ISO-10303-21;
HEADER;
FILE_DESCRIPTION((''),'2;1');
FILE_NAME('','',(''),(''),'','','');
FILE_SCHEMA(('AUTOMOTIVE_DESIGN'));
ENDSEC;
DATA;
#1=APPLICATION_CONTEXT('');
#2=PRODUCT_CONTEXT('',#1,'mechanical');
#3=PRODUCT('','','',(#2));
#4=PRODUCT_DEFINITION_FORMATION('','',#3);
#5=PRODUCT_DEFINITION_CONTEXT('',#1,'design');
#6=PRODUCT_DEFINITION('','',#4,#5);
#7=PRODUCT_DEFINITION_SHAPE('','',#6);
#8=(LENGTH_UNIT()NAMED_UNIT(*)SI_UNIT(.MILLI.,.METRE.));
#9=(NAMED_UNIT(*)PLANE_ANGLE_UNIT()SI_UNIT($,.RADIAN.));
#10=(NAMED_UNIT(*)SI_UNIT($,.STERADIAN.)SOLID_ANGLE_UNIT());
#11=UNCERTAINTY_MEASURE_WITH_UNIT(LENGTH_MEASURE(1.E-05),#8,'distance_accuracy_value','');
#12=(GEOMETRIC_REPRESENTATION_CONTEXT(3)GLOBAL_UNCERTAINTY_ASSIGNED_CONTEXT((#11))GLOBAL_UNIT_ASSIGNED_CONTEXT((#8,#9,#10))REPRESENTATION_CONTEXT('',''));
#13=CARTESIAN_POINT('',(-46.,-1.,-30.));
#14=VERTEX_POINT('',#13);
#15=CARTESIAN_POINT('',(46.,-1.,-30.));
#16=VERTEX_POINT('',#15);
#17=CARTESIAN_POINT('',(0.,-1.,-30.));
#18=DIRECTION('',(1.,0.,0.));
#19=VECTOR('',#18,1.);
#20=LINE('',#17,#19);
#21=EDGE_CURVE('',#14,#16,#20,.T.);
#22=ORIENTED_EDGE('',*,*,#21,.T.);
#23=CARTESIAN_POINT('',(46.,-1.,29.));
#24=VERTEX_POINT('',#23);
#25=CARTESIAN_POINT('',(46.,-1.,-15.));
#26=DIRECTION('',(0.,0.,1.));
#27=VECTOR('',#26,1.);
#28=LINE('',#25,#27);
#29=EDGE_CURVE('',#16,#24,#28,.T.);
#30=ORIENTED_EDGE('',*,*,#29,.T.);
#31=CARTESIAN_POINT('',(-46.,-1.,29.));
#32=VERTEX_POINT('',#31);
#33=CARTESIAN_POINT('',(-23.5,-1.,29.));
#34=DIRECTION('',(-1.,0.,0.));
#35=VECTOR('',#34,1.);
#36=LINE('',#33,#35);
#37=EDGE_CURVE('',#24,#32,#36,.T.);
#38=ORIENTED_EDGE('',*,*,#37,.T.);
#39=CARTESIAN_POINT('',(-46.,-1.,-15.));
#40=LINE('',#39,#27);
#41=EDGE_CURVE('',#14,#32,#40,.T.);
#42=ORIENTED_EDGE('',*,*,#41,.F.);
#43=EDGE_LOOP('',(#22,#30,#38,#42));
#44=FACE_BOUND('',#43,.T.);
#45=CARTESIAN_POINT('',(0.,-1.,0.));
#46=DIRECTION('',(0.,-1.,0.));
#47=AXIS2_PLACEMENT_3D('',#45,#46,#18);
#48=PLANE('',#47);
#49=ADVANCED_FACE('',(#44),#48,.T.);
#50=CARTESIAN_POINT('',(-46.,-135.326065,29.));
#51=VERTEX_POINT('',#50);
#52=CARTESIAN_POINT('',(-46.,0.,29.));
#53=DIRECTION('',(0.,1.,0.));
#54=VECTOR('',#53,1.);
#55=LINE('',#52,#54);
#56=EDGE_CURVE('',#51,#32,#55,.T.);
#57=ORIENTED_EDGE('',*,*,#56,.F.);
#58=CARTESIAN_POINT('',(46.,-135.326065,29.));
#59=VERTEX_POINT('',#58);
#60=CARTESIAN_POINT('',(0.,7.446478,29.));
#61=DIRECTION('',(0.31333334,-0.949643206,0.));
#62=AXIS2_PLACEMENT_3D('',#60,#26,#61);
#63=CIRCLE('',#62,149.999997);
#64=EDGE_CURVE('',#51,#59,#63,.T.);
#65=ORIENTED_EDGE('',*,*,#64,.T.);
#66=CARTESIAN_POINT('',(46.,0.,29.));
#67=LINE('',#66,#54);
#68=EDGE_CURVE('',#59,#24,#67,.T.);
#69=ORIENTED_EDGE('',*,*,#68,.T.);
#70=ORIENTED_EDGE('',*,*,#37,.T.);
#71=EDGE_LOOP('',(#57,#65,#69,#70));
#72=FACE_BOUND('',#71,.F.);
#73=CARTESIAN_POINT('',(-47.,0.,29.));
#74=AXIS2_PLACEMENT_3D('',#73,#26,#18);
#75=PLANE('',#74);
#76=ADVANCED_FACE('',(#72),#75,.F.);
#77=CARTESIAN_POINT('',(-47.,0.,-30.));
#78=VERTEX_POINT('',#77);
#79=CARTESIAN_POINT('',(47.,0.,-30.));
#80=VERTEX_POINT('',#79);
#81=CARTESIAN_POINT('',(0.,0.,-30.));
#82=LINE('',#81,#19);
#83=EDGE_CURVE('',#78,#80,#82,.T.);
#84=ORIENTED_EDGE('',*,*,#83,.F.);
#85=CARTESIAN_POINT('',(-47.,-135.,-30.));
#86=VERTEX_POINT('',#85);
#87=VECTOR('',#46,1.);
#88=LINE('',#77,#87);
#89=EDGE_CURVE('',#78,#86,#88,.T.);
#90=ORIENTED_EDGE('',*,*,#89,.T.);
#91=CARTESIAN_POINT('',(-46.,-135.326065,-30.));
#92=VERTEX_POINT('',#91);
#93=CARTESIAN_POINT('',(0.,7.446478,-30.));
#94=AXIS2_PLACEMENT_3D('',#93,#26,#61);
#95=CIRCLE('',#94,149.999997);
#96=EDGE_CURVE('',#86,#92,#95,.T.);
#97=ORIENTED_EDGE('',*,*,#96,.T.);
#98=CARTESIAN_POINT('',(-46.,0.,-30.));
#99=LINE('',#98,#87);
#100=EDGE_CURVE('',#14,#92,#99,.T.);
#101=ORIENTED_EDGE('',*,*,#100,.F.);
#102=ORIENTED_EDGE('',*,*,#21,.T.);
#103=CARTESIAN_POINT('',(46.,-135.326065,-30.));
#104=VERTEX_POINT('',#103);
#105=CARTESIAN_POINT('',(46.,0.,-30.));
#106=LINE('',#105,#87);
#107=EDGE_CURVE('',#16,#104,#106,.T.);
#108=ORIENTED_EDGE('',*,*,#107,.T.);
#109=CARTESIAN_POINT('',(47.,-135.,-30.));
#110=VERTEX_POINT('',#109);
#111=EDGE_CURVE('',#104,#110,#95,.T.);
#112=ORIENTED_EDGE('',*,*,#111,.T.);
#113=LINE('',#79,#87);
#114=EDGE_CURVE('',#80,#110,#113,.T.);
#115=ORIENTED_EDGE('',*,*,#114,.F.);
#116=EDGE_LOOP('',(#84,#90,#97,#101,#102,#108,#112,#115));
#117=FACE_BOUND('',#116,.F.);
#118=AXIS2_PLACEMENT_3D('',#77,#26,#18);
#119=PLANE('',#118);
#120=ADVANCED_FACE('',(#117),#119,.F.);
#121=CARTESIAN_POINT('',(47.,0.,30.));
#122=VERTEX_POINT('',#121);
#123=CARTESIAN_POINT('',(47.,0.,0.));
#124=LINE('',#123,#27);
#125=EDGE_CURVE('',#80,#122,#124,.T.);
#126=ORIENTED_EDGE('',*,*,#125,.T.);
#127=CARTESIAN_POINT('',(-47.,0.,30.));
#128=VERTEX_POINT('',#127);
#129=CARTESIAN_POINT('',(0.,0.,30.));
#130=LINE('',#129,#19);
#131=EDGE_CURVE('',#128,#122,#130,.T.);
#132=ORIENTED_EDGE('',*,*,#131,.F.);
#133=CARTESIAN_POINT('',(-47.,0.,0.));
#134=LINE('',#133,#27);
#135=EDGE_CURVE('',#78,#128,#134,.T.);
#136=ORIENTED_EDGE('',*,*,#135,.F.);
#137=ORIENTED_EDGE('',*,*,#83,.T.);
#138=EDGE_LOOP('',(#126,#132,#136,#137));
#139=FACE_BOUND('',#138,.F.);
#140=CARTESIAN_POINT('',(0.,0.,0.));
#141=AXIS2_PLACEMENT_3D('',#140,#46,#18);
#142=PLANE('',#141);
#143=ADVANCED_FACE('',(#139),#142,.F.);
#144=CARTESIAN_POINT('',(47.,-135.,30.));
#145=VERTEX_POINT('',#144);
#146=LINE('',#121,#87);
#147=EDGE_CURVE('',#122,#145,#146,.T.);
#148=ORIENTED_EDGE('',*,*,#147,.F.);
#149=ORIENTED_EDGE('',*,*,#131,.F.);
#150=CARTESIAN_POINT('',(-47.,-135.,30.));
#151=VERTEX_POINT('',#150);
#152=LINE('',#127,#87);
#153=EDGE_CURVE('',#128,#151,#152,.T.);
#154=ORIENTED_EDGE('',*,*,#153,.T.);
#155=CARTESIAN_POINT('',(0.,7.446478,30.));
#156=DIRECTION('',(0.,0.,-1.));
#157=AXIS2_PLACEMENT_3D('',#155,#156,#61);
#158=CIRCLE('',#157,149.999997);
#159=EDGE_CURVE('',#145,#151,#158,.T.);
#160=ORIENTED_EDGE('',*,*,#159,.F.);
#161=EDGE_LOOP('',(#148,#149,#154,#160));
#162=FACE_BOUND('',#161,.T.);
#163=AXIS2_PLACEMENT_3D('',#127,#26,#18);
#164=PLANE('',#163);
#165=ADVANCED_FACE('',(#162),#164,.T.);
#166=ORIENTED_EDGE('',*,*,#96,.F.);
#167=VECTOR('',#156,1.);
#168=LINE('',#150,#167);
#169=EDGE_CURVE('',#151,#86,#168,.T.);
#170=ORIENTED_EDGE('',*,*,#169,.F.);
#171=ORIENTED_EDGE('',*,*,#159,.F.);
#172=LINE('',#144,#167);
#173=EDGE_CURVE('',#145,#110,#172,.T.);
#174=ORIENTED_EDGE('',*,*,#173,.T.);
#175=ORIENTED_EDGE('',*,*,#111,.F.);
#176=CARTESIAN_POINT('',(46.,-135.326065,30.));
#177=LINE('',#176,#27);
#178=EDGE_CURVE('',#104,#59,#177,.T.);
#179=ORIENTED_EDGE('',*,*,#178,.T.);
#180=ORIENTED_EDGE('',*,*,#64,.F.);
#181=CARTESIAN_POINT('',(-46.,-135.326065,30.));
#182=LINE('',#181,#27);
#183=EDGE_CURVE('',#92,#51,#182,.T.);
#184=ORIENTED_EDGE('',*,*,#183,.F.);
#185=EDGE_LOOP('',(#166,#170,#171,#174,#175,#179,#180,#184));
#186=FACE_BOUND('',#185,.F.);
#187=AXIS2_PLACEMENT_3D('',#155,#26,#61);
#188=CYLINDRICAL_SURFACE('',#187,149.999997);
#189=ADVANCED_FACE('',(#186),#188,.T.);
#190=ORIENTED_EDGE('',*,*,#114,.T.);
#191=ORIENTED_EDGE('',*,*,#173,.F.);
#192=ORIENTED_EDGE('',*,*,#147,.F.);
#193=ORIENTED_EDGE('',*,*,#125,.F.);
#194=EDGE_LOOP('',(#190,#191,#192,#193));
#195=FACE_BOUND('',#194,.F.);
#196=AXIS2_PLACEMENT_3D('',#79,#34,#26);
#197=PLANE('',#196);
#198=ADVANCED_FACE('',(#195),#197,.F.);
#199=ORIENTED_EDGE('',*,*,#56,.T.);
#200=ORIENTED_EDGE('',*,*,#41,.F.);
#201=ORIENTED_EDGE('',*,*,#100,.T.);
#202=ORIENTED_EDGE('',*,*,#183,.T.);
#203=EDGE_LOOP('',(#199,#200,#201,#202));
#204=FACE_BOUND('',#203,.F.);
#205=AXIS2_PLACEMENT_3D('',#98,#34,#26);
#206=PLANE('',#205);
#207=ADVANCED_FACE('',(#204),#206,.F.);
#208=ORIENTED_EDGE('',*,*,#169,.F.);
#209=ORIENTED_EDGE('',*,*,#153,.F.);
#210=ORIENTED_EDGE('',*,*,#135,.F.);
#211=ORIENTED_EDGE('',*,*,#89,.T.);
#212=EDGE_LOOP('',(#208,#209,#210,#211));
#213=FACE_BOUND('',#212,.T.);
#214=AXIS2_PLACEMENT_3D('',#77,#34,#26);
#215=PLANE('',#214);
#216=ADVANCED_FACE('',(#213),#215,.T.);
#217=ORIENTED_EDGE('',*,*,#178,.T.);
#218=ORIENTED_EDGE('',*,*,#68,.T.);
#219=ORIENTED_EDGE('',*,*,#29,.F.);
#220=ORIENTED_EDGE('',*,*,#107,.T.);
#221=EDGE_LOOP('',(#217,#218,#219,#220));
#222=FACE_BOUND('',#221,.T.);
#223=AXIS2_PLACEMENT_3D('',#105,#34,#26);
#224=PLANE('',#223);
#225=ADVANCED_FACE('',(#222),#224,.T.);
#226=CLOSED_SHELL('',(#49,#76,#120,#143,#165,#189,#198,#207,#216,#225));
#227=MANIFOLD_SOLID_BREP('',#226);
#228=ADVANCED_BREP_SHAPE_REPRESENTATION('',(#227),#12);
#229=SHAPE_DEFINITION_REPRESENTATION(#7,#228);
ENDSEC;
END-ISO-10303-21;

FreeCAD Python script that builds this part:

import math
import FreeCAD as App
import Part
import Sketcher


def faces_at(feature, points):
    """Names of the faces that lie closest to the given points."""
    faces = feature.Shape.Faces
    near = lambda p: min(range(len(faces)), key=lambda i: faces[i].distToShape(Part.Vertex(*p))[0])
    return sorted({f"Face{near(p) + 1}" for p in points})

doc = App.newDocument("Part")
body = doc.addObject("PartDesign::Body", "Body")

sketch1 = body.newObject("Sketcher::SketchObject", "Sketch")
sketch1.AttachmentSupport = (doc.getObject("XZ_Plane"), [""])
sketch1.MapMode = "FlatFace"
sketch1.addGeometry([
    Part.LineSegment(App.Vector(-47, 30, 0), App.Vector(-47, -30, 0)),
    Part.LineSegment(App.Vector(-47, -30, 0), App.Vector(47, -30, 0)),
    Part.LineSegment(App.Vector(47, -30, 0), App.Vector(47, 30, 0)),
    Part.LineSegment(App.Vector(47, 30, 0), App.Vector(-47, 30, 0)),
], False)
sketch1.addConstraint([
    Sketcher.Constraint("Coincident", 0, 2, 1, 1),
    Sketcher.Constraint("Coincident", 1, 2, 2, 1),
    Sketcher.Constraint("Coincident", 2, 2, 3, 1),
    Sketcher.Constraint("Coincident", 3, 2, 0, 1),
    Sketcher.Constraint("Vertical", 0),
    Sketcher.Constraint("Horizontal", 1),
    Sketcher.Constraint("Vertical", 2),
    Sketcher.Constraint("Horizontal", 3),
    Sketcher.Constraint("Symmetric", 0, 2, 2, 2, -1, 1),
    Sketcher.Constraint("DistanceX", 1, 1, 1, 2, 94.0),
    Sketcher.Constraint("DistanceY", 0, 2, 0, 1, 60.0),
])
pad1 = body.newObject("PartDesign::Pad", "Pad")
pad1.Profile = sketch1
pad1.Length = 150
doc.recompute()

thickness = body.newObject("PartDesign::Thickness", "Thickness")
thickness.Base = (pad1, faces_at(pad1, [(0, -150, 0), (0, -75, -30)]))
thickness.Value = 1
thickness.Reversed = True
thickness.Join = "Arc"

sketch2 = body.newObject("Sketcher::SketchObject", "Sketch001")
sketch2.AttachmentSupport = (doc.getObject("XY_Plane"), [""])
sketch2.MapMode = "FlatFace"
sketch2.AttachmentOffset = App.Placement(App.Vector(0, 0, 30), App.Rotation())
sketch2.addGeometry([
    Part.LineSegment(App.Vector(47, -150, 0), App.Vector(47, -135, 0)),
    Part.ArcOfCircle(Part.Circle(App.Vector(0, 7.446478, 0), App.Vector(0, 0, 1), 149.999997), math.radians(-108.260228), math.radians(-71.739772)),
    Part.LineSegment(App.Vector(-47, -135, 0), App.Vector(-47, -150, 0)),
    Part.LineSegment(App.Vector(-47, -150, 0), App.Vector(47, -150, 0)),
], False)
sketch2.addConstraint([
    Sketcher.Constraint("Coincident", 0, 2, 1, 2),
    Sketcher.Constraint("Coincident", 1, 1, 2, 1),
    Sketcher.Constraint("Coincident", 2, 2, 3, 1),
    Sketcher.Constraint("Coincident", 3, 2, 0, 1),
    Sketcher.Constraint("Vertical", 0),
    Sketcher.Constraint("Vertical", 2),
    Sketcher.Constraint("Horizontal", 3),
    Sketcher.Constraint("Symmetric", 0, 2, 1, 1, -2),
    Sketcher.Constraint("DistanceX", 3, 1, 3, 2, 94.0),
    Sketcher.Constraint("DistanceY", 0, 1, 0, 2, 15.0),
    Sketcher.Constraint("DistanceY", 0, 2, -1, 1, 135.0),
    Sketcher.Constraint("Radius", 1, 149.999997),
])
pocket1 = body.newObject("PartDesign::Pocket", "Pocket")
pocket1.Profile = sketch2
pocket1.Type = "ThroughAll"

doc.recompute()
